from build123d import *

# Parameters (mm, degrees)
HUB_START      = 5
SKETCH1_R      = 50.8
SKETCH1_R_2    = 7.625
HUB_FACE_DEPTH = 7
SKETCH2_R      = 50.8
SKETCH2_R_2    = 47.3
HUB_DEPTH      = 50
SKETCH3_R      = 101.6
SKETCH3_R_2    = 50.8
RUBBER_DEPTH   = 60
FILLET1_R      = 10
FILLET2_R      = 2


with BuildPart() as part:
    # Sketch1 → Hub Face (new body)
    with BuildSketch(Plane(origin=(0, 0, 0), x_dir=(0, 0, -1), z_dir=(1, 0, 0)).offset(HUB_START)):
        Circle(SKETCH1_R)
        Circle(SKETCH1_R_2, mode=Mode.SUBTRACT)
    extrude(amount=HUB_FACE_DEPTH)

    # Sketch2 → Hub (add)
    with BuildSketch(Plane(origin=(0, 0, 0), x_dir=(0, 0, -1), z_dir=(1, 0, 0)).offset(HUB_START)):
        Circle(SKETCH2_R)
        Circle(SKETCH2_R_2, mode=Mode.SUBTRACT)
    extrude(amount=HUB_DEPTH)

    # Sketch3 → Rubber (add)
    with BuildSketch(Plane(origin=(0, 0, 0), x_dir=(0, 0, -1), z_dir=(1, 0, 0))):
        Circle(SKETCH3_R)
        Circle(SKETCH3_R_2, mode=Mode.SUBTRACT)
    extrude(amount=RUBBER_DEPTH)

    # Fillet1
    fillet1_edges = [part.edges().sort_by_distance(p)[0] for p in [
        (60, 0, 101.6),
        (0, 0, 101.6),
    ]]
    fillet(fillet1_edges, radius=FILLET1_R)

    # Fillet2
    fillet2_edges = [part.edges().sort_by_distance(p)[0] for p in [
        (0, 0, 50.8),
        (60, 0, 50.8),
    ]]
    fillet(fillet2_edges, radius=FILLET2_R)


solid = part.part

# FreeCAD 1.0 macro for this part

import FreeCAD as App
import Part
import Sketcher

V = App.Vector
Q = App.Units.Quantity


def edges_at(feature, points):
    """Names of the edges that pass closest to the given points."""
    edges = feature.Shape.Edges
    near = lambda p: min(range(len(edges)), key=lambda i: edges[i].distToShape(Part.Vertex(*p))[0])
    return sorted({f"Edge{near(p) + 1}" for p in points})

doc = App.newDocument("Part")
params = doc.addObject("Spreadsheet::Sheet", "Params")
for row, (alias, value) in enumerate([
    ("sketch1_diameter", "101.6 mm"),
    ("sketch1_diameter2", "15.25 mm"),
    ("pad1_length", "7 mm"),
    ("sketch2_diameter", "101.6 mm"),
    ("sketch2_diameter2", "94.6 mm"),
    ("pad2_length", "50 mm"),
    ("sketch3_diameter", "203.2 mm"),
    ("sketch3_diameter2", "101.6 mm"),
    ("pad3_length", "60 mm"),
    ("fillet_radius", "10 mm"),
    ("fillet2_radius", "2 mm"),
], start=1):
    params.set(f"A{row}", alias)
    params.set(f"B{row}", "=" + value)
    params.setAlias(f"B{row}", alias)

body = doc.addObject("PartDesign::Body", "Body")

sketch1 = body.newObject("Sketcher::SketchObject", "Sketch")
sketch1.AttachmentSupport = (doc.getObject("YZ_Plane"), [""])
sketch1.MapMode = "FlatFace"
sketch1.AttachmentOffset = App.Placement(V(0, 0, 5), App.Rotation())
sketch1.addGeometry(Part.Circle(V(0, 0, 0), V(0, 0, 1), 50.8), False)
sketch1.addGeometry(Part.Circle(V(0, 0, 0), V(0, 0, 1), 7.625), False)
sketch1.addConstraint(Sketcher.Constraint("Coincident", 0, 3, -1, 1))
sketch1.addConstraint(Sketcher.Constraint("Coincident", 1, 3, -1, 1))
sketch1.addConstraint(Sketcher.Constraint("Diameter", 0, Q("101.6 mm")))
sketch1.addConstraint(Sketcher.Constraint("Diameter", 1, Q("15.25 mm")))
sketch1.setExpression("Constraints[2]", "Params.sketch1_diameter")
sketch1.setExpression("Constraints[3]", "Params.sketch1_diameter2")
pad1 = body.newObject("PartDesign::Pad", "Pad")
pad1.Profile = sketch1
pad1.setExpression("Length", "Params.pad1_length")

sketch2 = body.newObject("Sketcher::SketchObject", "Sketch001")
sketch2.AttachmentSupport = (doc.getObject("YZ_Plane"), [""])
sketch2.MapMode = "FlatFace"
sketch2.AttachmentOffset = App.Placement(V(0, 0, 5), App.Rotation())
sketch2.addGeometry(Part.Circle(V(0, 0, 0), V(0, 0, 1), 50.8), False)
sketch2.addGeometry(Part.Circle(V(0, 0, 0), V(0, 0, 1), 47.3), False)
sketch2.addConstraint(Sketcher.Constraint("Coincident", 0, 3, -1, 1))
sketch2.addConstraint(Sketcher.Constraint("Coincident", 1, 3, -1, 1))
sketch2.addConstraint(Sketcher.Constraint("Diameter", 0, Q("101.6 mm")))
sketch2.addConstraint(Sketcher.Constraint("Diameter", 1, Q("94.6 mm")))
sketch2.setExpression("Constraints[2]", "Params.sketch2_diameter")
sketch2.setExpression("Constraints[3]", "Params.sketch2_diameter2")
pad2 = body.newObject("PartDesign::Pad", "Pad001")
pad2.Profile = sketch2
pad2.setExpression("Length", "Params.pad2_length")

sketch3 = body.newObject("Sketcher::SketchObject", "Sketch002")
sketch3.AttachmentSupport = (doc.getObject("YZ_Plane"), [""])
sketch3.MapMode = "FlatFace"
sketch3.addGeometry(Part.Circle(V(0, 0, 0), V(0, 0, 1), 101.6), False)
sketch3.addGeometry(Part.Circle(V(0, 0, 0), V(0, 0, 1), 50.8), False)
sketch3.addConstraint(Sketcher.Constraint("Coincident", 0, 3, -1, 1))
sketch3.addConstraint(Sketcher.Constraint("Coincident", 1, 3, -1, 1))
sketch3.addConstraint(Sketcher.Constraint("Diameter", 0, Q("203.2 mm")))
sketch3.addConstraint(Sketcher.Constraint("Diameter", 1, Q("101.6 mm")))
sketch3.setExpression("Constraints[2]", "Params.sketch3_diameter")
sketch3.setExpression("Constraints[3]", "Params.sketch3_diameter2")
pad3 = body.newObject("PartDesign::Pad", "Pad002")
pad3.Profile = sketch3
pad3.setExpression("Length", "Params.pad3_length")
doc.recompute()

fillet = body.newObject("PartDesign::Fillet", "Fillet")
fillet.Base = (pad3, edges_at(pad3, [(60, 0, 101.6), (0, 0, 101.6)]))
fillet.setExpression("Radius", "Params.fillet_radius")
doc.recompute()

fillet2 = body.newObject("PartDesign::Fillet", "Fillet001")
fillet2.Base = (fillet, edges_at(fillet, [(0, 0, 50.8), (60, 0, 50.8)]))
fillet2.setExpression("Radius", "Params.fillet2_radius")

doc.recompute()
